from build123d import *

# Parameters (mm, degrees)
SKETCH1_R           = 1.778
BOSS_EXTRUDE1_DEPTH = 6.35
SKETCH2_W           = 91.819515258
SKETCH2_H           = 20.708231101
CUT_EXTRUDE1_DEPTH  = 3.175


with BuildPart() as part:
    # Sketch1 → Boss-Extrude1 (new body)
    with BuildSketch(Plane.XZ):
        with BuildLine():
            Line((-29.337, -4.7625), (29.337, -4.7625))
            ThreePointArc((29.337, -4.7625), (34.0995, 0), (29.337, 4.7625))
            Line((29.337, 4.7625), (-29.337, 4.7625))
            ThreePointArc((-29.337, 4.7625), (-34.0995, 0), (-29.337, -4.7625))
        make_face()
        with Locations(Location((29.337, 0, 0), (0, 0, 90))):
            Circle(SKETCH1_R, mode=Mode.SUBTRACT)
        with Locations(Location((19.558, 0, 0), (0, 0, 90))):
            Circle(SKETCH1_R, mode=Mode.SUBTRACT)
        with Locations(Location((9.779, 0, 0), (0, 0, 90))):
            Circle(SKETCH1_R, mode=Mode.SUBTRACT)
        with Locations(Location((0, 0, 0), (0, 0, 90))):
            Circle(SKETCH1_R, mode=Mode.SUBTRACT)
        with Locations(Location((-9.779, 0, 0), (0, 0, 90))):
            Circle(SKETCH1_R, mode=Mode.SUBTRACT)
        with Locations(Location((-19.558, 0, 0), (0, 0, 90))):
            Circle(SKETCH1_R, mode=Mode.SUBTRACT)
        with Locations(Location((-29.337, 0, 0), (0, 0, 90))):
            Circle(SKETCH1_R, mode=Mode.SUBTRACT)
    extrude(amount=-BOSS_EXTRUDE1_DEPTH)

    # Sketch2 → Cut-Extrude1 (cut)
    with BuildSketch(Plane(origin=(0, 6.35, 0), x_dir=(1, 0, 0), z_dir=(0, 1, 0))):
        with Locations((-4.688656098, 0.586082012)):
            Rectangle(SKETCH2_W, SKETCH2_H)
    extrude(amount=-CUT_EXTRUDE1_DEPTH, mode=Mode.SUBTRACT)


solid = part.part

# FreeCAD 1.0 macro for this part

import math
import FreeCAD as App
import Part
import Sketcher
from FreeCAD import Vector
Q = App.Units.Quantity


def add_polygon(sketch, points):
    """Adds a closed chain of lines whose ends are joined by coincident constraints."""
    first, n = sketch.GeometryCount, len(points)
    for a, b in zip(points, points[1:] + points[:1]):
        sketch.addGeometry(Part.LineSegment(App.Vector(*a, 0), App.Vector(*b, 0)), False)
    for i in range(n):
        sketch.addConstraint(Sketcher.Constraint("Coincident", first + i, 2, first + (i + 1) % n, 1))

doc = App.newDocument("Part")
body = doc.addObject("PartDesign::Body", "Body")

# Sketch on XZ plane
sketch1 = body.newObject("Sketcher::SketchObject", "Sketch")
sketch1.AttachmentSupport = (doc.getObject("XZ_Plane"), [""])
sketch1.MapMode = "FlatFace"
sketch1.addGeometry([
    Part.LineSegment(Vector(-29.3, -4.8, 0), Vector(29.3, -4.8, 0)),  # 0
    Part.ArcOfCircle(Part.Circle(Vector(29.3, 0, 0), Vector(0, 0, 1), 4.8), math.radians(-90), math.radians(90)),  # 1
    Part.LineSegment(Vector(29.3, 4.8, 0), Vector(-29.3, 4.8, 0)),  # 2
    Part.ArcOfCircle(Part.Circle(Vector(-29.3, 0, 0), Vector(0, 0, 1), 4.8), math.radians(90), math.radians(270)),  # 3
    Part.Circle(Vector(-29.3, 0, 0), Vector(0, 0, 1), 1.8),  # 4
    Part.Circle(Vector(-19.6, 0, 0), Vector(0, 0, 1), 1.8),  # 5
    Part.Circle(Vector(-9.8, 0, 0), Vector(0, 0, 1), 1.8),  # 6
    Part.Circle(Vector(0, 0, 0), Vector(0, 0, 1), 1.8),  # 7
    Part.Circle(Vector(9.8, 0, 0), Vector(0, 0, 1), 1.8),  # 8
    Part.Circle(Vector(19.6, 0, 0), Vector(0, 0, 1), 1.8),  # 9
    Part.Circle(Vector(29.3, 0, 0), Vector(0, 0, 1), 1.8),  # 10
], False)
sketch1.addConstraint([
    Sketcher.Constraint("Tangent", 0, 2, 1, 1),
    Sketcher.Constraint("Tangent", 1, 2, 2, 1),
    Sketcher.Constraint("Tangent", 2, 2, 3, 1),
    Sketcher.Constraint("Tangent", 3, 2, 0, 1),
    Sketcher.Constraint("Horizontal", 0),
    Sketcher.Constraint("Horizontal", 2),
    Sketcher.Constraint("Coincident", 7, 3, -1, 1),
    Sketcher.Constraint("Coincident", 4, 3, 3, 3),
    Sketcher.Constraint("Coincident", 10, 3, 1, 3),
    Sketcher.Constraint("Equal", 4, 5),
    Sketcher.Constraint("Equal", 5, 6),
    Sketcher.Constraint("Equal", 6, 7),
    Sketcher.Constraint("Equal", 7, 8),
    Sketcher.Constraint("Equal", 8, 9),
    Sketcher.Constraint("Equal", 9, 10),
    Sketcher.Constraint("Symmetric", 1, 3, 3, 3, -1, 1),
    Sketcher.Constraint("Symmetric", 6, 3, 8, 3, -1, 1),
    Sketcher.Constraint("Symmetric", 5, 3, 9, 3, -1, 1),
    Sketcher.Constraint("PointOnObject", 5, 3, -1),
    Sketcher.Constraint("PointOnObject", 6, 3, -1),
    Sketcher.Constraint("Diameter", 4, Q("0.14 in")),
    Sketcher.Constraint("Radius", 1, Q("0.1875 in")),
    Sketcher.Constraint("DistanceX", 0, 1, 0, 2, Q("2.31 in")),
    Sketcher.Constraint("DistanceX", 5, 3, -1, 1, Q("0.77 in")),
    Sketcher.Constraint("DistanceX", 3, 3, 6, 3, Q("0.77 in")),
])
pad1 = body.newObject("PartDesign::Pad", "Pad")
pad1.Profile = sketch1
pad1.Length = Q("0.25 in")
pad1.Reversed = True

# Sketch on XZ plane
sketch2 = body.newObject("Sketcher::SketchObject", "Sketch001")
sketch2.AttachmentSupport = (doc.getObject("XZ_Plane"), [""])
sketch2.MapMode = "FlatFace"
sketch2.AttachmentOffset = App.Placement(Vector(0, 0, -0.25 * 25.4), App.Rotation())
add_polygon(sketch2, [(-51, -11), (-51, 10), (41, 10), (41, -11)])  # lines 0-3
sketch2.addConstraint([
    Sketcher.Constraint("Vertical", 0),
    Sketcher.Constraint("Horizontal", 1),
    Sketcher.Constraint("Vertical", 2),
    Sketcher.Constraint("Horizontal", 3),
    Sketcher.Constraint("DistanceY", 0, 1, 0, 2, Q("20.708231 mm")),
    Sketcher.Constraint("DistanceX", -1, 1, 1, 2, Q("41.221102 mm")),
    Sketcher.Constraint("DistanceX", 1, 1, 1, 2, Q("91.819515 mm")),
    Sketcher.Constraint("DistanceY", -1, 1, 0, 2, Q("9.768034 mm")),
])
pocket1 = body.newObject("PartDesign::Pocket", "Pocket")
pocket1.Profile = sketch2
pocket1.Length = Q("0.125 in")
pocket1.Reversed = True

doc.recompute()
